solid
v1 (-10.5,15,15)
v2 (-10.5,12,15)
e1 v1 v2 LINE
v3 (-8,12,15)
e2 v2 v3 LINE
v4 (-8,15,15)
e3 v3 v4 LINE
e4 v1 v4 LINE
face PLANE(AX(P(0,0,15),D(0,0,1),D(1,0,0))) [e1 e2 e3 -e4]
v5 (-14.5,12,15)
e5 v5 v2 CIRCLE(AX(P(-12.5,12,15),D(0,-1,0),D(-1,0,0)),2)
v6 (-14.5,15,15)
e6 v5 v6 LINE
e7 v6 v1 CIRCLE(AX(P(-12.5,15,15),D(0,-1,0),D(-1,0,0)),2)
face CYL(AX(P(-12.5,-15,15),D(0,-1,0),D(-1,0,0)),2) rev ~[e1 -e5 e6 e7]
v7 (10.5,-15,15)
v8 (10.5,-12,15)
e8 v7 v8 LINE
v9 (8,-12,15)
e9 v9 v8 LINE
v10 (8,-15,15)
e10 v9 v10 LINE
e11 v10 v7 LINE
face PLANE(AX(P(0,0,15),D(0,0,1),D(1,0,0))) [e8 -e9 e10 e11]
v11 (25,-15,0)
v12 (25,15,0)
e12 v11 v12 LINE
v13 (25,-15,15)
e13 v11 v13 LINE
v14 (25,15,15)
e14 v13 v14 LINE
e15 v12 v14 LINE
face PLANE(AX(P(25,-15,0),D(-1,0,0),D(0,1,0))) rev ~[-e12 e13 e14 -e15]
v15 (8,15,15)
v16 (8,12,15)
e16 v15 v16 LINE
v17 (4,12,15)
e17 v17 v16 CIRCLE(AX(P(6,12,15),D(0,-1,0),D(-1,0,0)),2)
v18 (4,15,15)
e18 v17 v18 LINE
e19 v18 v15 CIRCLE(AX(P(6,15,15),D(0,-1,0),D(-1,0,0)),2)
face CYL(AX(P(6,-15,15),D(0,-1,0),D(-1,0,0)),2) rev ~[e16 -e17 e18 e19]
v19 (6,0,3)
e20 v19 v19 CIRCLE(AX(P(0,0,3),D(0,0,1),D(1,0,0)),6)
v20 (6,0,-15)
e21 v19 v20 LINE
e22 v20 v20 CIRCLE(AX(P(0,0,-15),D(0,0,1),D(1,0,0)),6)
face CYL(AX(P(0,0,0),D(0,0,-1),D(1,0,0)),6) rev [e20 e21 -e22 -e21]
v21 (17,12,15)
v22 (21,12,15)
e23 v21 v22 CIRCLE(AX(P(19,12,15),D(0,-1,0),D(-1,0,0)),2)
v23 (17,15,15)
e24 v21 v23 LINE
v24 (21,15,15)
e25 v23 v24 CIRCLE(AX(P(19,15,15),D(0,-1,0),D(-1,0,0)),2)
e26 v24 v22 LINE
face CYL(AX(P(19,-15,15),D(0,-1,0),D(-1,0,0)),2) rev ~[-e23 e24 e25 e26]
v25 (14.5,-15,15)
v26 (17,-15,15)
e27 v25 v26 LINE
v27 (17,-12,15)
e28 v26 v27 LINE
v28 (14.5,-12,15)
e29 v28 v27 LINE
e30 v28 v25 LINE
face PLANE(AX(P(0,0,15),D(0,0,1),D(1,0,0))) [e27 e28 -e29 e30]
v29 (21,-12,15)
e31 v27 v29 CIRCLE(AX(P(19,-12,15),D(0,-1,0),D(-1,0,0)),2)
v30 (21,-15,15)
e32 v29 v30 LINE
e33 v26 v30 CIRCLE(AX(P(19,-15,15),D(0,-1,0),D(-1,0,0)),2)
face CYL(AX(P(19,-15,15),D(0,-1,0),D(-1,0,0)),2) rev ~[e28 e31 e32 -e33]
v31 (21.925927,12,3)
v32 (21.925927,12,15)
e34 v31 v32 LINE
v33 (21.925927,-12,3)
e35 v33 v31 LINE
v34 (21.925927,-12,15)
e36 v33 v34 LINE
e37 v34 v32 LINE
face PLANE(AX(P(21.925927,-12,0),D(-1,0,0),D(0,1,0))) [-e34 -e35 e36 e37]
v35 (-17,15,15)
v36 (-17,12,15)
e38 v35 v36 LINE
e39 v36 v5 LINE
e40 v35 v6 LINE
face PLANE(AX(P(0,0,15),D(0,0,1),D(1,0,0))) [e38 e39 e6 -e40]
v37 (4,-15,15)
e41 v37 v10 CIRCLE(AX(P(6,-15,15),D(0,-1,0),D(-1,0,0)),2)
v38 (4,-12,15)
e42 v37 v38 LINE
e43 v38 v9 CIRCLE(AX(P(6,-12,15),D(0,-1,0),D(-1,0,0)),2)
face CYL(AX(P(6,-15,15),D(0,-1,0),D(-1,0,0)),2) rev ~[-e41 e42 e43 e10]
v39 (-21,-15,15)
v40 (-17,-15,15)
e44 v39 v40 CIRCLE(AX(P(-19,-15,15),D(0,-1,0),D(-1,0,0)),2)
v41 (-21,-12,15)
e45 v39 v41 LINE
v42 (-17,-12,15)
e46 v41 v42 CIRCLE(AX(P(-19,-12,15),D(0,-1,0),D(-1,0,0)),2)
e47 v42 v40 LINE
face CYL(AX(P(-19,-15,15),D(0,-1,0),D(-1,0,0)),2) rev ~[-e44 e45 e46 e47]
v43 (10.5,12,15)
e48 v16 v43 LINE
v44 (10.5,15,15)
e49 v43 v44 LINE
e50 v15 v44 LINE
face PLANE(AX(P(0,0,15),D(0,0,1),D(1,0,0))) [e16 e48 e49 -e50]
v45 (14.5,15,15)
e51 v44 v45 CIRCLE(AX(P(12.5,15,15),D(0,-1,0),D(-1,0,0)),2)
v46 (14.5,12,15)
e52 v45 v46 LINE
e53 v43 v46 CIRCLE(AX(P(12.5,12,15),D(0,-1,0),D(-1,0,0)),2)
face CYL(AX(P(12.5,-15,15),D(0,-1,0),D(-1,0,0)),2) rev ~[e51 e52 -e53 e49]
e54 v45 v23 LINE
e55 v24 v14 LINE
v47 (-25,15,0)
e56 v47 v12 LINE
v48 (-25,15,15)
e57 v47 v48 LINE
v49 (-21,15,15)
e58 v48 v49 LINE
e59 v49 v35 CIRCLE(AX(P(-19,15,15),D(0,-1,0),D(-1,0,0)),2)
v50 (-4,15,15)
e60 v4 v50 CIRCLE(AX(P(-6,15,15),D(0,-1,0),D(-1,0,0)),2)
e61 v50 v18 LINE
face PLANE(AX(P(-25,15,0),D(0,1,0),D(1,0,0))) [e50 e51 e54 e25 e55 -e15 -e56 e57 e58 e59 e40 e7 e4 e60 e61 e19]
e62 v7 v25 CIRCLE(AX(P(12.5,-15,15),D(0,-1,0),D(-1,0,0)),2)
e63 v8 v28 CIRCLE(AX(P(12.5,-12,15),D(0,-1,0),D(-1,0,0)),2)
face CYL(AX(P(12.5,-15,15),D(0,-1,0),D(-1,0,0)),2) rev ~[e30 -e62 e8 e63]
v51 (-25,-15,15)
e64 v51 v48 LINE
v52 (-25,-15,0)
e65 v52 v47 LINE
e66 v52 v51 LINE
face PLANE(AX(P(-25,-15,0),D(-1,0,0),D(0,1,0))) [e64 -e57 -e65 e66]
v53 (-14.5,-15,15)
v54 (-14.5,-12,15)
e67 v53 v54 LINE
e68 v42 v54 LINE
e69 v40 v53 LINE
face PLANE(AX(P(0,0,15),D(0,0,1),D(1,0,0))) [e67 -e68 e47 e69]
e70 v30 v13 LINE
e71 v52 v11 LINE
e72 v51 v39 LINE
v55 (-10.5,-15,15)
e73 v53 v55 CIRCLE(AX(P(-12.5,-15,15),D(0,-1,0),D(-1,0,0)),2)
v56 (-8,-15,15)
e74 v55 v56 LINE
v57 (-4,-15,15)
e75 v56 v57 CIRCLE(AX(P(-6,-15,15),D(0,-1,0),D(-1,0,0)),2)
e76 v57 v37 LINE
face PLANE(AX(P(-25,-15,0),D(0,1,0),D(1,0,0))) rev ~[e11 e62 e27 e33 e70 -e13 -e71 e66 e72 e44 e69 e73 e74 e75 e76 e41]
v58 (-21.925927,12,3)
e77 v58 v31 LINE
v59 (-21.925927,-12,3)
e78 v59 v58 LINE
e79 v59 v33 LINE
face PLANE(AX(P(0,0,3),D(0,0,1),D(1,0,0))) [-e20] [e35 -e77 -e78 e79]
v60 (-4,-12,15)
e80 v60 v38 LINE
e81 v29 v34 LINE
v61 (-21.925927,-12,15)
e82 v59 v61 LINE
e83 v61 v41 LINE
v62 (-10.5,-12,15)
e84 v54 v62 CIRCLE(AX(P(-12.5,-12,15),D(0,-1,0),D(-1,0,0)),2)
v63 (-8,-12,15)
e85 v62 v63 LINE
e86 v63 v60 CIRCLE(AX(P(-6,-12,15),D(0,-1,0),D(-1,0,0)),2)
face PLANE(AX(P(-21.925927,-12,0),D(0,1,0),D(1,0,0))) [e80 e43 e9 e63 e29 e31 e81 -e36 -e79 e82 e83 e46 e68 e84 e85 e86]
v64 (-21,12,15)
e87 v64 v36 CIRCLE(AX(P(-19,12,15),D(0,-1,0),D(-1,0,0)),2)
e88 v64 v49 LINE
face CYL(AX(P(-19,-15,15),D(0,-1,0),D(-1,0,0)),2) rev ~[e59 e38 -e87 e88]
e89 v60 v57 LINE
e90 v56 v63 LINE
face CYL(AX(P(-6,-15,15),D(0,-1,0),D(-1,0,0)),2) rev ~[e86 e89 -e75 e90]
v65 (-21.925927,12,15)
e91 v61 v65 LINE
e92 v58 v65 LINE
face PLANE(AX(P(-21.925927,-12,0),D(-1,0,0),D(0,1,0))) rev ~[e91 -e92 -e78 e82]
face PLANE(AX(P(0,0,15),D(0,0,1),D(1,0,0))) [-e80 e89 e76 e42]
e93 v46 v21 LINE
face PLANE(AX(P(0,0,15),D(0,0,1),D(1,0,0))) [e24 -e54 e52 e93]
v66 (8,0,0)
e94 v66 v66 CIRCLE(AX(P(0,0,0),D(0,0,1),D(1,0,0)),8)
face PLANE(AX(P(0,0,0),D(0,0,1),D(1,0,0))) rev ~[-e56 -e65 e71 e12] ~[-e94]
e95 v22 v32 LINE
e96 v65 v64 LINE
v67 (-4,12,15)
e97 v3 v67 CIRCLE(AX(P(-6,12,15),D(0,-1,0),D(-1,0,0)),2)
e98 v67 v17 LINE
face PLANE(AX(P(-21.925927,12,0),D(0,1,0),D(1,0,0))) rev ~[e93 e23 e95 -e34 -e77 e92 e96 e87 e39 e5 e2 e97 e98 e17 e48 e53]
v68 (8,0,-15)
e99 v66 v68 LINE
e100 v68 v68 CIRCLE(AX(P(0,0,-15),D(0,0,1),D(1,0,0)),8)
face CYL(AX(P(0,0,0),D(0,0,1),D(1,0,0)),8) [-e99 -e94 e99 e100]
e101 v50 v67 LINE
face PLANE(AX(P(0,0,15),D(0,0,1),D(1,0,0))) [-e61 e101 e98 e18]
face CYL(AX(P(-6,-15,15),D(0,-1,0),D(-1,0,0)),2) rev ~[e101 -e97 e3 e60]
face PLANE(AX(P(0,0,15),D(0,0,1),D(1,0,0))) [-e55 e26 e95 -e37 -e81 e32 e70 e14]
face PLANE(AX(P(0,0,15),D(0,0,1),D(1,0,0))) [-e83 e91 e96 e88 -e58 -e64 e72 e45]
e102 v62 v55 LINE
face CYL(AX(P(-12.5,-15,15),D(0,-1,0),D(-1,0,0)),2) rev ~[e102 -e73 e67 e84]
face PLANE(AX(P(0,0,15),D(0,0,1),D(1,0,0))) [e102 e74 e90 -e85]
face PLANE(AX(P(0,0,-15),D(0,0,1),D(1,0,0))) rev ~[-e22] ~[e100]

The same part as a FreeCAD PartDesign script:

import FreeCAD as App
import Part
import Sketcher
from FreeCAD import Vector
Q = App.Units.Quantity


def add_polygon(sketch, points):
    """Adds a closed chain of lines whose ends are joined by coincident constraints."""
    first, n = sketch.GeometryCount, len(points)
    for a, b in zip(points, points[1:] + points[:1]):
        sketch.addGeometry(Part.LineSegment(App.Vector(*a, 0), App.Vector(*b, 0)), False)
    for i in range(n):
        sketch.addConstraint(Sketcher.Constraint("Coincident", first + i, 2, first + (i + 1) % n, 1))

doc = App.newDocument("Part")
body = doc.addObject("PartDesign::Body", "Body")

# Sketch on XY plane
sketch1 = doc.addObject("Sketcher::SketchObject", "Sketch")
body.addObject(sketch1)
sketch1.AttachmentSupport = (doc.XY_Plane, [""])
sketch1.MapMode = "FlatFace"
add_polygon(sketch1, [(-25, 15), (-25, -15), (25, -15), (25, 15)])  # lines 0-3
add_polygon(sketch1, [(22, -12), (-22, -12), (-22, 12), (22, 12)])  # lines 4-7
sketch1.addConstraint(Sketcher.Constraint("Vertical", 0))
sketch1.addConstraint(Sketcher.Constraint("Horizontal", 1))
sketch1.addConstraint(Sketcher.Constraint("Vertical", 2))
sketch1.addConstraint(Sketcher.Constraint("Horizontal", 3))
sketch1.addConstraint(Sketcher.Constraint("Horizontal", 4))
sketch1.addConstraint(Sketcher.Constraint("Vertical", 5))
sketch1.addConstraint(Sketcher.Constraint("Horizontal", 6))
sketch1.addConstraint(Sketcher.Constraint("Vertical", 7))
sketch1.addConstraint(Sketcher.Constraint("Symmetric", 0, 2, 2, 2, -1, 1))
sketch1.addConstraint(Sketcher.Constraint("Symmetric", 4, 2, 6, 2, -1, 1))
sketch1.addConstraint(Sketcher.Constraint("DistanceX", 1, 1, 1, 2, Q("50 mm")))
sketch1.addConstraint(Sketcher.Constraint("DistanceY", 0, 2, 0, 1, Q("30 mm")))
sketch1.addConstraint(Sketcher.Constraint("DistanceY", 5, 1, 5, 2, Q("24 mm")))
sketch1.addConstraint(Sketcher.Constraint("DistanceX", 4, 2, 4, 1, Q("43.851855 mm")))
pad1 = doc.addObject("PartDesign::Pad", "Pad")
body.addObject(pad1)
pad1.Profile = sketch1
pad1.Length = 15

# Sketch on XY plane
sketch2 = doc.addObject("Sketcher::SketchObject", "Sketch001")
body.addObject(sketch2)
sketch2.AttachmentSupport = (doc.XY_Plane, [""])
sketch2.MapMode = "FlatFace"
add_polygon(sketch2, [(-22, 12), (-22, -12), (22, -12), (22, 12)])  # lines 0-3
sketch2.addGeometry(Part.Circle(Vector(0, 0, 0), Vector(0, 0, 1), 8), False)  # 4
sketch2.addConstraint(Sketcher.Constraint("Vertical", 0))
sketch2.addConstraint(Sketcher.Constraint("Horizontal", 1))
sketch2.addConstraint(Sketcher.Constraint("Vertical", 2))
sketch2.addConstraint(Sketcher.Constraint("Horizontal", 3))
sketch2.addConstraint(Sketcher.Constraint("Coincident", 4, 3, -1, 1))
sketch2.addConstraint(Sketcher.Constraint("Symmetric", 0, 2, 2, 2, -1, 1))
sketch2.addConstraint(Sketcher.Constraint("Diameter", 4, Q("16 mm")))
sketch2.addConstraint(Sketcher.Constraint("DistanceY", 0, 2, 0, 1, Q("24 mm")))
sketch2.addConstraint(Sketcher.Constraint("DistanceX", 1, 1, 1, 2, Q("43.851855 mm")))
pad2 = doc.addObject("PartDesign::Pad", "Pad001")
body.addObject(pad2)
pad2.Profile = sketch2
pad2.Length = 3

# Sketch on XY plane
sketch3 = doc.addObject("Sketcher::SketchObject", "Sketch002")
body.addObject(sketch3)
sketch3.AttachmentSupport = (doc.XY_Plane, [""])
sketch3.MapMode = "FlatFace"
sketch3.addGeometry(Part.Circle(Vector(0, 0, 0), Vector(0, 0, 1), 8), False)
sketch3.addGeometry(Part.Circle(Vector(0, 0, 0), Vector(0, 0, 1), 6), False)
sketch3.addConstraint(Sketcher.Constraint("Coincident", 0, 3, -1, 1))
sketch3.addConstraint(Sketcher.Constraint("Coincident", 1, 3, -1, 1))
sketch3.addConstraint(Sketcher.Constraint("Diameter", 0, Q("16 mm")))
sketch3.addConstraint(Sketcher.Constraint("Diameter", 1, Q("12 mm")))
pad3 = doc.addObject("PartDesign::Pad", "Pad002")
body.addObject(pad3)
pad3.Profile = sketch3
pad3.Type = "TwoLengths"
pad3.Length = 15
pad3.Length2 = 3
pad3.Reversed = True

# Sketch on XZ plane
sketch4 = doc.addObject("Sketcher::SketchObject", "Sketch003")
body.addObject(sketch4)
sketch4.AttachmentSupport = (doc.XZ_Plane, [""])
sketch4.MapMode = "FlatFace"
sketch4.AttachmentOffset = App.Placement(Vector(0, 0, 15), App.Rotation())
sketch4.addGeometry(Part.Circle(Vector(-19, 15, 0), Vector(0, 0, 1), 2), False)
sketch4.addGeometry(Part.Circle(Vector(19, 15, 0), Vector(0, 0, 1), 2), False)
sketch4.addGeometry(Part.Circle(Vector(12.5, 15, 0), Vector(0, 0, 1), 2), False)
sketch4.addGeometry(Part.Circle(Vector(6, 15, 0), Vector(0, 0, 1), 2), False)
sketch4.addGeometry(Part.Circle(Vector(-6, 15, 0), Vector(0, 0, 1), 2), False)
sketch4.addGeometry(Part.Circle(Vector(-12.5, 15, 0), Vector(0, 0, 1), 2), False)
sketch4.addConstraint(Sketcher.Constraint("Equal", 0, 1))
sketch4.addConstraint(Sketcher.Constraint("Equal", 1, 2))
sketch4.addConstraint(Sketcher.Constraint("Equal", 2, 3))
sketch4.addConstraint(Sketcher.Constraint("Equal", 3, 4))
sketch4.addConstraint(Sketcher.Constraint("Equal", 4, 5))
sketch4.addConstraint(Sketcher.Constraint("Symmetric", 0, 3, 1, 3, -2))
sketch4.addConstraint(Sketcher.Constraint("Symmetric", 3, 3, 4, 3, -2))
sketch4.addConstraint(Sketcher.Constraint("Symmetric", 2, 3, 5, 3, -2))
sketch4.addConstraint(Sketcher.Constraint("Horizontal", 1, 3, 2, 3))
sketch4.addConstraint(Sketcher.Constraint("Horizontal", 2, 3, 3, 3))
sketch4.addConstraint(Sketcher.Constraint("Diameter", 0, Q("4 mm")))
sketch4.addConstraint(Sketcher.Constraint("DistanceX", 0, 3, -1, 1, Q("19 mm")))
sketch4.addConstraint(Sketcher.Constraint("DistanceY", -1, 1, 0, 3, Q("15 mm")))
sketch4.addConstraint(Sketcher.Constraint("DistanceX", -1, 1, 3, 3, Q("6 mm")))
sketch4.addConstraint(Sketcher.Constraint("DistanceX", 5, 3, 2, 3, Q("25 mm")))
pocket1 = doc.addObject("PartDesign::Pocket", "Pocket")
body.addObject(pocket1)
pocket1.Profile = sketch4
pocket1.Length = 46.6

doc.recompute()
